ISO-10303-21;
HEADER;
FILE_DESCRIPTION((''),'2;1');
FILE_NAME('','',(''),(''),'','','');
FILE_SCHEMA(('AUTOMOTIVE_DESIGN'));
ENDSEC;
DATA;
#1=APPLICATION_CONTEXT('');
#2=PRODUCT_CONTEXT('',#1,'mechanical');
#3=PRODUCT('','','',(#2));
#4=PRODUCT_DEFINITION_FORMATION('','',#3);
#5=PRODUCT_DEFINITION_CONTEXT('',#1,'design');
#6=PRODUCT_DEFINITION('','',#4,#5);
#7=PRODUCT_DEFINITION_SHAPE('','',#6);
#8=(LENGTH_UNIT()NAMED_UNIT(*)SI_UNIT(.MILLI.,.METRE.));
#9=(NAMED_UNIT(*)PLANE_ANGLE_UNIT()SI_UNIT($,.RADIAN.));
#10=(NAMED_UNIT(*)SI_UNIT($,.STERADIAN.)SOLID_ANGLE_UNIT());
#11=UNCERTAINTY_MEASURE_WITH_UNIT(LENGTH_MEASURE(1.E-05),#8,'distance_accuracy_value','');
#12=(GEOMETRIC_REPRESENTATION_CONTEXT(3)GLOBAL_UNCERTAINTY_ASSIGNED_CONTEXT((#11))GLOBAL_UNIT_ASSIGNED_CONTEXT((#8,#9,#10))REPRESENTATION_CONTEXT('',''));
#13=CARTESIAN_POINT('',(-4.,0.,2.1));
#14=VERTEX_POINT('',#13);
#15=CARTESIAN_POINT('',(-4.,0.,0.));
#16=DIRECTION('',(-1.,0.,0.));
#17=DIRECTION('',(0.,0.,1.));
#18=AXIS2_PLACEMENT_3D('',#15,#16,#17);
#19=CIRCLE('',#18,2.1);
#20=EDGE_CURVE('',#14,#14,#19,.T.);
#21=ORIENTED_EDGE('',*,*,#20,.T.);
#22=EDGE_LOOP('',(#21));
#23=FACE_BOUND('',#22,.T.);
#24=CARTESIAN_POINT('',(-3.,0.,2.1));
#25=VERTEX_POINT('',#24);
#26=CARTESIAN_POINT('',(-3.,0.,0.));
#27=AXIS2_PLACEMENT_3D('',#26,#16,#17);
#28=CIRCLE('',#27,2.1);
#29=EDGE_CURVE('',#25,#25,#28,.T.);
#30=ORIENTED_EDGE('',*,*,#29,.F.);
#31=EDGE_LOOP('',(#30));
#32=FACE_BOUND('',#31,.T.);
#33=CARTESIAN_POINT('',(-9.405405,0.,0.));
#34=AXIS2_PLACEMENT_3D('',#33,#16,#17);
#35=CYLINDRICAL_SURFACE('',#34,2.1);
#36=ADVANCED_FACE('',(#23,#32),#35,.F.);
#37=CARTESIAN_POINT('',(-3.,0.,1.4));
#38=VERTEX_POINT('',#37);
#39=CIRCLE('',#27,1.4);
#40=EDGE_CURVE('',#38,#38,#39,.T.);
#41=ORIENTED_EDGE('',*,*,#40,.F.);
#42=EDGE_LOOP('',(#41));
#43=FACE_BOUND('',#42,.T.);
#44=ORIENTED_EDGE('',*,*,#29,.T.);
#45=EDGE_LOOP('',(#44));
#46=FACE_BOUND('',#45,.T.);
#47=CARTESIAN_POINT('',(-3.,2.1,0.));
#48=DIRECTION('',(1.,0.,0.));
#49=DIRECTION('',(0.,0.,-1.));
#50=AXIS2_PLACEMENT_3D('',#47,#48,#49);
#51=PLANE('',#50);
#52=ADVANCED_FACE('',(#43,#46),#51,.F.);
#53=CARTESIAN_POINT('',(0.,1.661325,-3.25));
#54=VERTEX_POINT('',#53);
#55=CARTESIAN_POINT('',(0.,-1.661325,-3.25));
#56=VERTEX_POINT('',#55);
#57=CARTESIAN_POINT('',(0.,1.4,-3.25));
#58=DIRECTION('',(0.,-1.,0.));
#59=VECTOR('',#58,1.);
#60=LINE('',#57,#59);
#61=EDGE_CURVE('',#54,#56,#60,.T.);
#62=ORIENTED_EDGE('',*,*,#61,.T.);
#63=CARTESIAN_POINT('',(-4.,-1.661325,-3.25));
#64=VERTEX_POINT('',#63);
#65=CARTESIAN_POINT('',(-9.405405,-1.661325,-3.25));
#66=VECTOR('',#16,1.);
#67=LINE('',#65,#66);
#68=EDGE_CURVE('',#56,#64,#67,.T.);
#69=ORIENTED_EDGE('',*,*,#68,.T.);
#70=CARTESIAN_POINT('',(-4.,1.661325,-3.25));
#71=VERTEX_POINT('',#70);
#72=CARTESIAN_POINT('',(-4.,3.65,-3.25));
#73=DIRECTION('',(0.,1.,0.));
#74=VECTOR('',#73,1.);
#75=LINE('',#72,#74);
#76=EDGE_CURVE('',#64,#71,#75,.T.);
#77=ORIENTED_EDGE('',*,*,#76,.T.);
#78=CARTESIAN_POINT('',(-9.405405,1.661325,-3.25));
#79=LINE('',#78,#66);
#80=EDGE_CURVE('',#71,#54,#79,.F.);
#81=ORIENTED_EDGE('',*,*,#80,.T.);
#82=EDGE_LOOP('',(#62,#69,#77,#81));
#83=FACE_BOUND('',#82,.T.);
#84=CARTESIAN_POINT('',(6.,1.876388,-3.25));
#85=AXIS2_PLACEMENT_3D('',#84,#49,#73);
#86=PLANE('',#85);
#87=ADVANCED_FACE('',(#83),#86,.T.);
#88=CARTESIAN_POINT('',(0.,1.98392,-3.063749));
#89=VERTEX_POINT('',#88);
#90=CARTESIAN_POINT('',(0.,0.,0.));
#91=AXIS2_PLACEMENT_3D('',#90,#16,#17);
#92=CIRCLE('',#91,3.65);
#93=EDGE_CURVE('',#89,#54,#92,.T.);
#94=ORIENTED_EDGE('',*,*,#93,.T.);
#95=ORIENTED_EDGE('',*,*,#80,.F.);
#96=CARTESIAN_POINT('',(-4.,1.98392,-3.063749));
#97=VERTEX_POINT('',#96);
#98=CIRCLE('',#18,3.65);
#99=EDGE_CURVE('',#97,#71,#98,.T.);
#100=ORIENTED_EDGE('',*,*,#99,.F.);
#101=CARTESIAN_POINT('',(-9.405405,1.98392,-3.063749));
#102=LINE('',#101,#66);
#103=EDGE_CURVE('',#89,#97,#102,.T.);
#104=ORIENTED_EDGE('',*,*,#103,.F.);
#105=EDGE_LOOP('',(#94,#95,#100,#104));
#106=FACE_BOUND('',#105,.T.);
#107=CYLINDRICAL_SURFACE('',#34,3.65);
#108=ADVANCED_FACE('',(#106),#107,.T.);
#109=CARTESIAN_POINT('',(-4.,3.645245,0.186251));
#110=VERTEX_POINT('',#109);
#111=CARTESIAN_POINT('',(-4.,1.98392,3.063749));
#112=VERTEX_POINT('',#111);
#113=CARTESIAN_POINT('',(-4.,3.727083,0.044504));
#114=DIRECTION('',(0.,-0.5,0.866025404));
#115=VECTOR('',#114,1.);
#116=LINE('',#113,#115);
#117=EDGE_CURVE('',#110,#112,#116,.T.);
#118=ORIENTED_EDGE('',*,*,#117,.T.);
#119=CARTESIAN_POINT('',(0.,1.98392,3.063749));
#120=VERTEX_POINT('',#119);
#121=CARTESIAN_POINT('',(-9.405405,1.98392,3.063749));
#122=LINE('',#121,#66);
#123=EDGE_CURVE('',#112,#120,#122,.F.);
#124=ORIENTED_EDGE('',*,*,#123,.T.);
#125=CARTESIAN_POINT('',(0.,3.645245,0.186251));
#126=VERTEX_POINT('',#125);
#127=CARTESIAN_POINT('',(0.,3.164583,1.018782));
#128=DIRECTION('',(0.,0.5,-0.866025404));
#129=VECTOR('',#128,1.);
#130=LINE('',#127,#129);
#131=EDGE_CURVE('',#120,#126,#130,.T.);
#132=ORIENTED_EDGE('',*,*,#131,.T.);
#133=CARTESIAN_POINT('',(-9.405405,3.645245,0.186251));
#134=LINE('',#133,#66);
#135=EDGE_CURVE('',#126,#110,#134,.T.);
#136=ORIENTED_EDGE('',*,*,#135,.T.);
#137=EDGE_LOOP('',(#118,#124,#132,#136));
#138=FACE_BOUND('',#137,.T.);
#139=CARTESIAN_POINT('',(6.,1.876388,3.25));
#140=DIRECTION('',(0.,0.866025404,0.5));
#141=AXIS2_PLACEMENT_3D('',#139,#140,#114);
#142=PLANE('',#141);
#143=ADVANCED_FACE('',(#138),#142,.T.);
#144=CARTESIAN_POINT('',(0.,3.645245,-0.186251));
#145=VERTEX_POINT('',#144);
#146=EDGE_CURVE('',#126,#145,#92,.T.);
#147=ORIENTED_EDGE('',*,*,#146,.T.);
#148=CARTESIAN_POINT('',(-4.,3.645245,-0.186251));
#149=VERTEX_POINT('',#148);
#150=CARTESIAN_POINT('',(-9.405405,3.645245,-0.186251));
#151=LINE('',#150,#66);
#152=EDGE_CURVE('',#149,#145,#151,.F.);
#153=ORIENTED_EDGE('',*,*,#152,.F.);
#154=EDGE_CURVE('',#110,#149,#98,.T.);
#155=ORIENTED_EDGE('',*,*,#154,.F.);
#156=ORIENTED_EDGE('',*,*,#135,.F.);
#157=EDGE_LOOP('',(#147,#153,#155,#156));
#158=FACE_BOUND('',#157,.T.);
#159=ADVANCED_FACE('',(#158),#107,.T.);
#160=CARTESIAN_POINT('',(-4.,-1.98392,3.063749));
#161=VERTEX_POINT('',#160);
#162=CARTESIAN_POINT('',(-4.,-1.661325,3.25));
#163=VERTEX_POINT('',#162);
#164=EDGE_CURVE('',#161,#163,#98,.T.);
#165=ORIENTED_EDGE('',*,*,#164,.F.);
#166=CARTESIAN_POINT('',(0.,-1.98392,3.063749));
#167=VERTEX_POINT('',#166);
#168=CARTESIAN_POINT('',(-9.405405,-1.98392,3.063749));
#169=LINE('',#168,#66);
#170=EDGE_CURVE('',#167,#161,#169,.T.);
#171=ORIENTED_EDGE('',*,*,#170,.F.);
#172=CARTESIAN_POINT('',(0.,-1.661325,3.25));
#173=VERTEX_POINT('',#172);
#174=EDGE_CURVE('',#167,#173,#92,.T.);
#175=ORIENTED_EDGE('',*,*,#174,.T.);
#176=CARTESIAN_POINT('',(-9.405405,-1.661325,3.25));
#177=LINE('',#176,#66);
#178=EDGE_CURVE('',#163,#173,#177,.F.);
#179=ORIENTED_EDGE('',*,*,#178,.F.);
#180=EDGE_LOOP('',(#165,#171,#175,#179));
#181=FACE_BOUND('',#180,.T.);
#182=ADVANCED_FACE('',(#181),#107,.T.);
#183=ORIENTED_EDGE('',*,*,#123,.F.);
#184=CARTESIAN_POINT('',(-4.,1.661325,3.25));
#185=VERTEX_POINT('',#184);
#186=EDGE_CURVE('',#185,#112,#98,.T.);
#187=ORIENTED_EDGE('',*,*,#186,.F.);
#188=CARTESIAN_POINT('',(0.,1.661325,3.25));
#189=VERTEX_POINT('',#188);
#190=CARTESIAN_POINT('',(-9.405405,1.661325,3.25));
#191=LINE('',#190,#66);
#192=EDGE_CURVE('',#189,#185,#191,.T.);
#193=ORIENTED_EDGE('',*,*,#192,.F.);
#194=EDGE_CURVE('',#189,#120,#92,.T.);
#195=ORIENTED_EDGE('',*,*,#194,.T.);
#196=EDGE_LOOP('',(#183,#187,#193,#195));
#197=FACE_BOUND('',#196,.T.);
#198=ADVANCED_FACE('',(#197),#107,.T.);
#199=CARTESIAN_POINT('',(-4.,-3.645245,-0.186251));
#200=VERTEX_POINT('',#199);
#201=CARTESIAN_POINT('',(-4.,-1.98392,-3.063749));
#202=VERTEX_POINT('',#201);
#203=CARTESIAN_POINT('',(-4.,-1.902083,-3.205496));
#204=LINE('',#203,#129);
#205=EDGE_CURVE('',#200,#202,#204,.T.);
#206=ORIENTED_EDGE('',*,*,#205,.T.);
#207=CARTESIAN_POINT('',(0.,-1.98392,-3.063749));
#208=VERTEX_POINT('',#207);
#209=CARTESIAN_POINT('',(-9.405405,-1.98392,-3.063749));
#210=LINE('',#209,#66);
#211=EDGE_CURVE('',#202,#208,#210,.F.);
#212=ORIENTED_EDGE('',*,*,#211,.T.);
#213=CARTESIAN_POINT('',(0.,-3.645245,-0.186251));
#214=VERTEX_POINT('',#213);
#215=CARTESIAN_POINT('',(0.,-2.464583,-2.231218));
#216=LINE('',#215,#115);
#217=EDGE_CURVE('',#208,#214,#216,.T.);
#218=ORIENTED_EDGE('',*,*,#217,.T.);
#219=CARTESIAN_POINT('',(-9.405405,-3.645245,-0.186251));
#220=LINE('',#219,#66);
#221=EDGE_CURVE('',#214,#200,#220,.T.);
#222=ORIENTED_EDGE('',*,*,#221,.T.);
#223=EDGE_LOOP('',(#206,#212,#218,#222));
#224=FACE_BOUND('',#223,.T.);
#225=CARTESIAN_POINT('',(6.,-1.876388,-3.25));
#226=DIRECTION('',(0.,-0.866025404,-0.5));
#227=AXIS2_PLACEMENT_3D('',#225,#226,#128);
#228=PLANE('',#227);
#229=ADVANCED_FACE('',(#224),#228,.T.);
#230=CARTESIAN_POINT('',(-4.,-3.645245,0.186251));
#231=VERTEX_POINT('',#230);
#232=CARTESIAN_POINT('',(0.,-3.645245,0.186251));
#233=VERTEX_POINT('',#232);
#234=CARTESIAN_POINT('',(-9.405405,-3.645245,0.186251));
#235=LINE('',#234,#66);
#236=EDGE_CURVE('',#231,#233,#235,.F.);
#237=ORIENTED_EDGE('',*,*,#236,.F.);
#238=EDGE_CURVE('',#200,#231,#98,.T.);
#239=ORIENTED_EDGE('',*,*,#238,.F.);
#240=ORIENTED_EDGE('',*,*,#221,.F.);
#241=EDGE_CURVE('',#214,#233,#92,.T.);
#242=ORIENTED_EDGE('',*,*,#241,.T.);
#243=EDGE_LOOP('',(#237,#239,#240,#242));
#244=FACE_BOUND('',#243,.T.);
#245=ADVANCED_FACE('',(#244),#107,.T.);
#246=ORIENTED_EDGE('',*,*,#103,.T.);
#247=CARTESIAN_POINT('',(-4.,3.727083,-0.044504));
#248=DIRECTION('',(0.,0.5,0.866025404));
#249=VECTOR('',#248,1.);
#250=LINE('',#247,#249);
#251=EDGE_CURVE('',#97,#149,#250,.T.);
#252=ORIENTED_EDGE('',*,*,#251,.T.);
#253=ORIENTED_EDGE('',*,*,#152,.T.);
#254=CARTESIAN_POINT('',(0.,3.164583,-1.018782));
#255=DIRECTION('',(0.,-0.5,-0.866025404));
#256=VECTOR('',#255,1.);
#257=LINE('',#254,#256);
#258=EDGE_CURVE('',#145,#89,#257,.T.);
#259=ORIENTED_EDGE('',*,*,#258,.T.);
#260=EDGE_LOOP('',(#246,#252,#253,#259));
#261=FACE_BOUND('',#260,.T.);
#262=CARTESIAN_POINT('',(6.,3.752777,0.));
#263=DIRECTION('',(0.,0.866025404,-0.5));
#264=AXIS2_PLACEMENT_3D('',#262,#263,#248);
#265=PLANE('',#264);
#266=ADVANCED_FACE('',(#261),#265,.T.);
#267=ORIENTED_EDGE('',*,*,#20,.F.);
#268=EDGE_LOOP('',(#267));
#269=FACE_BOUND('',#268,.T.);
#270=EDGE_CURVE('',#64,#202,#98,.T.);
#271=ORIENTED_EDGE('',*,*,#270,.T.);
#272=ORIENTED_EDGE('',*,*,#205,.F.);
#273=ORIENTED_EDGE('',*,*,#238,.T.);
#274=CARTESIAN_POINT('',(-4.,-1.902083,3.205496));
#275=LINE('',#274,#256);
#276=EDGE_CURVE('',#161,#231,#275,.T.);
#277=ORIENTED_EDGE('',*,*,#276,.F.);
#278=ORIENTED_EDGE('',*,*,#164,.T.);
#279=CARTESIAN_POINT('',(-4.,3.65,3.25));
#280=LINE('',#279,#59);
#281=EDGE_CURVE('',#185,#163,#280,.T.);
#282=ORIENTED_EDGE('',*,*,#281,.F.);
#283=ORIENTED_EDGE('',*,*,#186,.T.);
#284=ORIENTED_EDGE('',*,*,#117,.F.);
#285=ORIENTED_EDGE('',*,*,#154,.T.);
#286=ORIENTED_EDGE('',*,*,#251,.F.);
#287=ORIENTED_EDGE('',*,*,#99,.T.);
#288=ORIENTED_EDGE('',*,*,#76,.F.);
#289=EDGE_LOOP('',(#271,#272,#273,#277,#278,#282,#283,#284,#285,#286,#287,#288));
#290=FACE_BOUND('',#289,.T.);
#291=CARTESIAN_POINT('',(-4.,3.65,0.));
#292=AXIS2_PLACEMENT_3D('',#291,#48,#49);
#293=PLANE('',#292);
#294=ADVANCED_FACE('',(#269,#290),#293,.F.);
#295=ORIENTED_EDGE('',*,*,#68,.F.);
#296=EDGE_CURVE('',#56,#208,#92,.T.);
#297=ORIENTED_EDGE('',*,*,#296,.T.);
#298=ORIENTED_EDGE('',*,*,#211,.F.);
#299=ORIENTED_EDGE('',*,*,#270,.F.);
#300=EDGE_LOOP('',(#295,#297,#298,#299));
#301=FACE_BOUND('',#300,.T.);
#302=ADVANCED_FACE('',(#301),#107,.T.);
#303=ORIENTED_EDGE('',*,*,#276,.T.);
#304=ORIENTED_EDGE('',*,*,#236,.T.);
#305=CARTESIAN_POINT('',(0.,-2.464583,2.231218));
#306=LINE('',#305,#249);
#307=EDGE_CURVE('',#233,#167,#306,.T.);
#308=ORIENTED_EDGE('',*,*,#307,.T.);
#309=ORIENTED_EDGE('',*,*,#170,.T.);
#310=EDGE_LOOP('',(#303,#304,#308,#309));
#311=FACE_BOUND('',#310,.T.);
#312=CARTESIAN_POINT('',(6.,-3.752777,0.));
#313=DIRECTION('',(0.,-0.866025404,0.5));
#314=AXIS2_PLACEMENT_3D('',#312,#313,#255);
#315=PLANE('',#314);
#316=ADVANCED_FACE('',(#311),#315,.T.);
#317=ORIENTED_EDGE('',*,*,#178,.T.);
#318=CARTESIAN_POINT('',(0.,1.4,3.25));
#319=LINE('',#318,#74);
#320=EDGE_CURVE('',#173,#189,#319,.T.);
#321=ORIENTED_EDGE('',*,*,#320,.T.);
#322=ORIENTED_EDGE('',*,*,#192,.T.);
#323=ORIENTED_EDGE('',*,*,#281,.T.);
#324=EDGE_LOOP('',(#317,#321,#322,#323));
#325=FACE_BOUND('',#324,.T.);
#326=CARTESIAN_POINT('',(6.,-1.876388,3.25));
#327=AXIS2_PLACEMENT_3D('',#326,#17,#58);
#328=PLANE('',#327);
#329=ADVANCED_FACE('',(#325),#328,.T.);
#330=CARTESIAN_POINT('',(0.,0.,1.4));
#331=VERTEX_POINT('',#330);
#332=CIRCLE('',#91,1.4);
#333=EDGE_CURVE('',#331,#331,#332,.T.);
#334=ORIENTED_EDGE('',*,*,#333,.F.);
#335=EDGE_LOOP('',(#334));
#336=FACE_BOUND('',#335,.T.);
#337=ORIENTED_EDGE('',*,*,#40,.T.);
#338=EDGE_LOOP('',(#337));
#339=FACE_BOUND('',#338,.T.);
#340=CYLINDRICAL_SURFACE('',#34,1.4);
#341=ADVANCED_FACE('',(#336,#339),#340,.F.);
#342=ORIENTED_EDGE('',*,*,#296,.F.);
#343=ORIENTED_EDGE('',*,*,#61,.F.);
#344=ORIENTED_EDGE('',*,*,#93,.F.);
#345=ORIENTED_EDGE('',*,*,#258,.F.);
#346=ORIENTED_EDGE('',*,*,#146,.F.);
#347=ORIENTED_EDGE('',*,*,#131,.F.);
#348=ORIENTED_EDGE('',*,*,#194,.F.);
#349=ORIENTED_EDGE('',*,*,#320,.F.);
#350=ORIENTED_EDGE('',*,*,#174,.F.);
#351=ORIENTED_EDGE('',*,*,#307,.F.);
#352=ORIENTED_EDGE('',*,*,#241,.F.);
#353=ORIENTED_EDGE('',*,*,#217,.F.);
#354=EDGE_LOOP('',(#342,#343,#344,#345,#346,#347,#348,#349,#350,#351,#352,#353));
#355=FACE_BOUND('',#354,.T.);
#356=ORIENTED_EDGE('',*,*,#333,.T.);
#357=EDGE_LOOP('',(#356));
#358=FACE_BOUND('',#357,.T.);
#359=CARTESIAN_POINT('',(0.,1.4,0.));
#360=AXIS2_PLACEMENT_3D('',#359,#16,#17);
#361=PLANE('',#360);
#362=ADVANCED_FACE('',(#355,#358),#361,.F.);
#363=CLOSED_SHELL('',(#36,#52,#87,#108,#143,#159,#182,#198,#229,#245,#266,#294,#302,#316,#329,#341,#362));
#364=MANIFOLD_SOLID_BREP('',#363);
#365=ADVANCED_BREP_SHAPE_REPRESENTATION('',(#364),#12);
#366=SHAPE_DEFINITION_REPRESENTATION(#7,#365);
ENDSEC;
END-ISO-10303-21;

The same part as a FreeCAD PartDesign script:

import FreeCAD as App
import Part
import Sketcher
Q = App.Units.Quantity


def add_polygon(sketch, points):
    """Adds a closed chain of lines whose ends are joined by coincident constraints."""
    first, n = sketch.GeometryCount, len(points)
    for a, b in zip(points, points[1:] + points[:1]):
        sketch.addGeometry(Part.LineSegment(App.Vector(*a, 0), App.Vector(*b, 0)), False)
    for i in range(n):
        sketch.addConstraint(Sketcher.Constraint("Coincident", first + i, 2, first + (i + 1) % n, 1))

doc = App.newDocument("Part")
body = doc.addObject("PartDesign::Body", "Body")

sketch1 = body.newObject("Sketcher::SketchObject", "Sketch")
sketch1.AttachmentSupport = (doc.getObject("XY_Plane"), [""])
sketch1.MapMode = "FlatFace"
add_polygon(sketch1, [(0, 1.4), (0, 3.6), (-4, 3.6), (-4, 2.1), (-3, 2.1), (-3, 1.4)])
sketch1.addConstraint([
    Sketcher.Constraint("Vertical", 0),
    Sketcher.Constraint("Horizontal", 1),
    Sketcher.Constraint("Vertical", 2),
    Sketcher.Constraint("Horizontal", 3),
    Sketcher.Constraint("Vertical", 4),
    Sketcher.Constraint("Horizontal", 5),
    Sketcher.Constraint("PointOnObject", 0, 2, -2),
    Sketcher.Constraint("DistanceX", 1, 2, 1, 1, 4.0),
    Sketcher.Constraint("DistanceX", 3, 1, 3, 2, 1.0),
    Sketcher.Constraint("DistanceY", 4, 2, 4, 1, 0.7),
    Sketcher.Constraint("DistanceY", 0, 1, 0, 2, 2.25),
    Sketcher.Constraint("DistanceY", -1, 1, 2, 2, 2.1),
])
revolution = body.newObject("PartDesign::Revolution", "Revolution")
revolution.Profile = sketch1
revolution.ReferenceAxis = (sketch1, ["H_Axis"])
revolution.Angle = 360

sketch2 = body.newObject("Sketcher::SketchObject", "Sketch001")
sketch2.AttachmentSupport = (doc.getObject("YZ_Plane"), [""])
sketch2.MapMode = "FlatFace"
sketch2.AttachmentOffset = App.Placement(App.Vector(0, 0, -4), App.Rotation())
add_polygon(sketch2, [(5.8, -5.8), (-5.8, -5.8), (-5.8, 5.8), (5.8, 5.8)])
add_polygon(sketch2, [(1.9, -3.2), (3.8, 0), (1.9, 3.2), (-1.9, 3.2), (-3.8, 0), (-1.9, -3.2)])
sketch2.addConstraint([
    Sketcher.Constraint("Horizontal", 0),
    Sketcher.Constraint("Vertical", 1),
    Sketcher.Constraint("Horizontal", 2),
    Sketcher.Constraint("Vertical", 3),
    Sketcher.Constraint("Horizontal", 6),
    Sketcher.Constraint("Horizontal", 9),
    Sketcher.Constraint("Symmetric", 0, 2, 2, 2, -1, 1),
    Sketcher.Constraint("Symmetric", 4, 2, 7, 2, -1, 1),
    Sketcher.Constraint("Symmetric", 5, 2, 8, 2, -1, 1),
    Sketcher.Constraint("PointOnObject", 4, 2, -1),
    Sketcher.Constraint("Parallel", 4, 7),
    Sketcher.Constraint("Vertical", 6, 2, 8, 2),
    Sketcher.Constraint("Equal", 2, 1),
    Sketcher.Constraint("Angle", 4, Q("60 deg")),
    Sketcher.Constraint("DistanceY", 8, 2, 6, 2, 6.5),
    Sketcher.Constraint("DistanceX", 0, 2, 0, 1, 11.514),
    Sketcher.Constraint("DistanceX", 6, 2, 6, 1, 3.752777),
])
pocket1 = body.newObject("PartDesign::Pocket", "Pocket")
pocket1.Profile = sketch2
pocket1.Length = 10
pocket1.Reversed = True

doc.recompute()
